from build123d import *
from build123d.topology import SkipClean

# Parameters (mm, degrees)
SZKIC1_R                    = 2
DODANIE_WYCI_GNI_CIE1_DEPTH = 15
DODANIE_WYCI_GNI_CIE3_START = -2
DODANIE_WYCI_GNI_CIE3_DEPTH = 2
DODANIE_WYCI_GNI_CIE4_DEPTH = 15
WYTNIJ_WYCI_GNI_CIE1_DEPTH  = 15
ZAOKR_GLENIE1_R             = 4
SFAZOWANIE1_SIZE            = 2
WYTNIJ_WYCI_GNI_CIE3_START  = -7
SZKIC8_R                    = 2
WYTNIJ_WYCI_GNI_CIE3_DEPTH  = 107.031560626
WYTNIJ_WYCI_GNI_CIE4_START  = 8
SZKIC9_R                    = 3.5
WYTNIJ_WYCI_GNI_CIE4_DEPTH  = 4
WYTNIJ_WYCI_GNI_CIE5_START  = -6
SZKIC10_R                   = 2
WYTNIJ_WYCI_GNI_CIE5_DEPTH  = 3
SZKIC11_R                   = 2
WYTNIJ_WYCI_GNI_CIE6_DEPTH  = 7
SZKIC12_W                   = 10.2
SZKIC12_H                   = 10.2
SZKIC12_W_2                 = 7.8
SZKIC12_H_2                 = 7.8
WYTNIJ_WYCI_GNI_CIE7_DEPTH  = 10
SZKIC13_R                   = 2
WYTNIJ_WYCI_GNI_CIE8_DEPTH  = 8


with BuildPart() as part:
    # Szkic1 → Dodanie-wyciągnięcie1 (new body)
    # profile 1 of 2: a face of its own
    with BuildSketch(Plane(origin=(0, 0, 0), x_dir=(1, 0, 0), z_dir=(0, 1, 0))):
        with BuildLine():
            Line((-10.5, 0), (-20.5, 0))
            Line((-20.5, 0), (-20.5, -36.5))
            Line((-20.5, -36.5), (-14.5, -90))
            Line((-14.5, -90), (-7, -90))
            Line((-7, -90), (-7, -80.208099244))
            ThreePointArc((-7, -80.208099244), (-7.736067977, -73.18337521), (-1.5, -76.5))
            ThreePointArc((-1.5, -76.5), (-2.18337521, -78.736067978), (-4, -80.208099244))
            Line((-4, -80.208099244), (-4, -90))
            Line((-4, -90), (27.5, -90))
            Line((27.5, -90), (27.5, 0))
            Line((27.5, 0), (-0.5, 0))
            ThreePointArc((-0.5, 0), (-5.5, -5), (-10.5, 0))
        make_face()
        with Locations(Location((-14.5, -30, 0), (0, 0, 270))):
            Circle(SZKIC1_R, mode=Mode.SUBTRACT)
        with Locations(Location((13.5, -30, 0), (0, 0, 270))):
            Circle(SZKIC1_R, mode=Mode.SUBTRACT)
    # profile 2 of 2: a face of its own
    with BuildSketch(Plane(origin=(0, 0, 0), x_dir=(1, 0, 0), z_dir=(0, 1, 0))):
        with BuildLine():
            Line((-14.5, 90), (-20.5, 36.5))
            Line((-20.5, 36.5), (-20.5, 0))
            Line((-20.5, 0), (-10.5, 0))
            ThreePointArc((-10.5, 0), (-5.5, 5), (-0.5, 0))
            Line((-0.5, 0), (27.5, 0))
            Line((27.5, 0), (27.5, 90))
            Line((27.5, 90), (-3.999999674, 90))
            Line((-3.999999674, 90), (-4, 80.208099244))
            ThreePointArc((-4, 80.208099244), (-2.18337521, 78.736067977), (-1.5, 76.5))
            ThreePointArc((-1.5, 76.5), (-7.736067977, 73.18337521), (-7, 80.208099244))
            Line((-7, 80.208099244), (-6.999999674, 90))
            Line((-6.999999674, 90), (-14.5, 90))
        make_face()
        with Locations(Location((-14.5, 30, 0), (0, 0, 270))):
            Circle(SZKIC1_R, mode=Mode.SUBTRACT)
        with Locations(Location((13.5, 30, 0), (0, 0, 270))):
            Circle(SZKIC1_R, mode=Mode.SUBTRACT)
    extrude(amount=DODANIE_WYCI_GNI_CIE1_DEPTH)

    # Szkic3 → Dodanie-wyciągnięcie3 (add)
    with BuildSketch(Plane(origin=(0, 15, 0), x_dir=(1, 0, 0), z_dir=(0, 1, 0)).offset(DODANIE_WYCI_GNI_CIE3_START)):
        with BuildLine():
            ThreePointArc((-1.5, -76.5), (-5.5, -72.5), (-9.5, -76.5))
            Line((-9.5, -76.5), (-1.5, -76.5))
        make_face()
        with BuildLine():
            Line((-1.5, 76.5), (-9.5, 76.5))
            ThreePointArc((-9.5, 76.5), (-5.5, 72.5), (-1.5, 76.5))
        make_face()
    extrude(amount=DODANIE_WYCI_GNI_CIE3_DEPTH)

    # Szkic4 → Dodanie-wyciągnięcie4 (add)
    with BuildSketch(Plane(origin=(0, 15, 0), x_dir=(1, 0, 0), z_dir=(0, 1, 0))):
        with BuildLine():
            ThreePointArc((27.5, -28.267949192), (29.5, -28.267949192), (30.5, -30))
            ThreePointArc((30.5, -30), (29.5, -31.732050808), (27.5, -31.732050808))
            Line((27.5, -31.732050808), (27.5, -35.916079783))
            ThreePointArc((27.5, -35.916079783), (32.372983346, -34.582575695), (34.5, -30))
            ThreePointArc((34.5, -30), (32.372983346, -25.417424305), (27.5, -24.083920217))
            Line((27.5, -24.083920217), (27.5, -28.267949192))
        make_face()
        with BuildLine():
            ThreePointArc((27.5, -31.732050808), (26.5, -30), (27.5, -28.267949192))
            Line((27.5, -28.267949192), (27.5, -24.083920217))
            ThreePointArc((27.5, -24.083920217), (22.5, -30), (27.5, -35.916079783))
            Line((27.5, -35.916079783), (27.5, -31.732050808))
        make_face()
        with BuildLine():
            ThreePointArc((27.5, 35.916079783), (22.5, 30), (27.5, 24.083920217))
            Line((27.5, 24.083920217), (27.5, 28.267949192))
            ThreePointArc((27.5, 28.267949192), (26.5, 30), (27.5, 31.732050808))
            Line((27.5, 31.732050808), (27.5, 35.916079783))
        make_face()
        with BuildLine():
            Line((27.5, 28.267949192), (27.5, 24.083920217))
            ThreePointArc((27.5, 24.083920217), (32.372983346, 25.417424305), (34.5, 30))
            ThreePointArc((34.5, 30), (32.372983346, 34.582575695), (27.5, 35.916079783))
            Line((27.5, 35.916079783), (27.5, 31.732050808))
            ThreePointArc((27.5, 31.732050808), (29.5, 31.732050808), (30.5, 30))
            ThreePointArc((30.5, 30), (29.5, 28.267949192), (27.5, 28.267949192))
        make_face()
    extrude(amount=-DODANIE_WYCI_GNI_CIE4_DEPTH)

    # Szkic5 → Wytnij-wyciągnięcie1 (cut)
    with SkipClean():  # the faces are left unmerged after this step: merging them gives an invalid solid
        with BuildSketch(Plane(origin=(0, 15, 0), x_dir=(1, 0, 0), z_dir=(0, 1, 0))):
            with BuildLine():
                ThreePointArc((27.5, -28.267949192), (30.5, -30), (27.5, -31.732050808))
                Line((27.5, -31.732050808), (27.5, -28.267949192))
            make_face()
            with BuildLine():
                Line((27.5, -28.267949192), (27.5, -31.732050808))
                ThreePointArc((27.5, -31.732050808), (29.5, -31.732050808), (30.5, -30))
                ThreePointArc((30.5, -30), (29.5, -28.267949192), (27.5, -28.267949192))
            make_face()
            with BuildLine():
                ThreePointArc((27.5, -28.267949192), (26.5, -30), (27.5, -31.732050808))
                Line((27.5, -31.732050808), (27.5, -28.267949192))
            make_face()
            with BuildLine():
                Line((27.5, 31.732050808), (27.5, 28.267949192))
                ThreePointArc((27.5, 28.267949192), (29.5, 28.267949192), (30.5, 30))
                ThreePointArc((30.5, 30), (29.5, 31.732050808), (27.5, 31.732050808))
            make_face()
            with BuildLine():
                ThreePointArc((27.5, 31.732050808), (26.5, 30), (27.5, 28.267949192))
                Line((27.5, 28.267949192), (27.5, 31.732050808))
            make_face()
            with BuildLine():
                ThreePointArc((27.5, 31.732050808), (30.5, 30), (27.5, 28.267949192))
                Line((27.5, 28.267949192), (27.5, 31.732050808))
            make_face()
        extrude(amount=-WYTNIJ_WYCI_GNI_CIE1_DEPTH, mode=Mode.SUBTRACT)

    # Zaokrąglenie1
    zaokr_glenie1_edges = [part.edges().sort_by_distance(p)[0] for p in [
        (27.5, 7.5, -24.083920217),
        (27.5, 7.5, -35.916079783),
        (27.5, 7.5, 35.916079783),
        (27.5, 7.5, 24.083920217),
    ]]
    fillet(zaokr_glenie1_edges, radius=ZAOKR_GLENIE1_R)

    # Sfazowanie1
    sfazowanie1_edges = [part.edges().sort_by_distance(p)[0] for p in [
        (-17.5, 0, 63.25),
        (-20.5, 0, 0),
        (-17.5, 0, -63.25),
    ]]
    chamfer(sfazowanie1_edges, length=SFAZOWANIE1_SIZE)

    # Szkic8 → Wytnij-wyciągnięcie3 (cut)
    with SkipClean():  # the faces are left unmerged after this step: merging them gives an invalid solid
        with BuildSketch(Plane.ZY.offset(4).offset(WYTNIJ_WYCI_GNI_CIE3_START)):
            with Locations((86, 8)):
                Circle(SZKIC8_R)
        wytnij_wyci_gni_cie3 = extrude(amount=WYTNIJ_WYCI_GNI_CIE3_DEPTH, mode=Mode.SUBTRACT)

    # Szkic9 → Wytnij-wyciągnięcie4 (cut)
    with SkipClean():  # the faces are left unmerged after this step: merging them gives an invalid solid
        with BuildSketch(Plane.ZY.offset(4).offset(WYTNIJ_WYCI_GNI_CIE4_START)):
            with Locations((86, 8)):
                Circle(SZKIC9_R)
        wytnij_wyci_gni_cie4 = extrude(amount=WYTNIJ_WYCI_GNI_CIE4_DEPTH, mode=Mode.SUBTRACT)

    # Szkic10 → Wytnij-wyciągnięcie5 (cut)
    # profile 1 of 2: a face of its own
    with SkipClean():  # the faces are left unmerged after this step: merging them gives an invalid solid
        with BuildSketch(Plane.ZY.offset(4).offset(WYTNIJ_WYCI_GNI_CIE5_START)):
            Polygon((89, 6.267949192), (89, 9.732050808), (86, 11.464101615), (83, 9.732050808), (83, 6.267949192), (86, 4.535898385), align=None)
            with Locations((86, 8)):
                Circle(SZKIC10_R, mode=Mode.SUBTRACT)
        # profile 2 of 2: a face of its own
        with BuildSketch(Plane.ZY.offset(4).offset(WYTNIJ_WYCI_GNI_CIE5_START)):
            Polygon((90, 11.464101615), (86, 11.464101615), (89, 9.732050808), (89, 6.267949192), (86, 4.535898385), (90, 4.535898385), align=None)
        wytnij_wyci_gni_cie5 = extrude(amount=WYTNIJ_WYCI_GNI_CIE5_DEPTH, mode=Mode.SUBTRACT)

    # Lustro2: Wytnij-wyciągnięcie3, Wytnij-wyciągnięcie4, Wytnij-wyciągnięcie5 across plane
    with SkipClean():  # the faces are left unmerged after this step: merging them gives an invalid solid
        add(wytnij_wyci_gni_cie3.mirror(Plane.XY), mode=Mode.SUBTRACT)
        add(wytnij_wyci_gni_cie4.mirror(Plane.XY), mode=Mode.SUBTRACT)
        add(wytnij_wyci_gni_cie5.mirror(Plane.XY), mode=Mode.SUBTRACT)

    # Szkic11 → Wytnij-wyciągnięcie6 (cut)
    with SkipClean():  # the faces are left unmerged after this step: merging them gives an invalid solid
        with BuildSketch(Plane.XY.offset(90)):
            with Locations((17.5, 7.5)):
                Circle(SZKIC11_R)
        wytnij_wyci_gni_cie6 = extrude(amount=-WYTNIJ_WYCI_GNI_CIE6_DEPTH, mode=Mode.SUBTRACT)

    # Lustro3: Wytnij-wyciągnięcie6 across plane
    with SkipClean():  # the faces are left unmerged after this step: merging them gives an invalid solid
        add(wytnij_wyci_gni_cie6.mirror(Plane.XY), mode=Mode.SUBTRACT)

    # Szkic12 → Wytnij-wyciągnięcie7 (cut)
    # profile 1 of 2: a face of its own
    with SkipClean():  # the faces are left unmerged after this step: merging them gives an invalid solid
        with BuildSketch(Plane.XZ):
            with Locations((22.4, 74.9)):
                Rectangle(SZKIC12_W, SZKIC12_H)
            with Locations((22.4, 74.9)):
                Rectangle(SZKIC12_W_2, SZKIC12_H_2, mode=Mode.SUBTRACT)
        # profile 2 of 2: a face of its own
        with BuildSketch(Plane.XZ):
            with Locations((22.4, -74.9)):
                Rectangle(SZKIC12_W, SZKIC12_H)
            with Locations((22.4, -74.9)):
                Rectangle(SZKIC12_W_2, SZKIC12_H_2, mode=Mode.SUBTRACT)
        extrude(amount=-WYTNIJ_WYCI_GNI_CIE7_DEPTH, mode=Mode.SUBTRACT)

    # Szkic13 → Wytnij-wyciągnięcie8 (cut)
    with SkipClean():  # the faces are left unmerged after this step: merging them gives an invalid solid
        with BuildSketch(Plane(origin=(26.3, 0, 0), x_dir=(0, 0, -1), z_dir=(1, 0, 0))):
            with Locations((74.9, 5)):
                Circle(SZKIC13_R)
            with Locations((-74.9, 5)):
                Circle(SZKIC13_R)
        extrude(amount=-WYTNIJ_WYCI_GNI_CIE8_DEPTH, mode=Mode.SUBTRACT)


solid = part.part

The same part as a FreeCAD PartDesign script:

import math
import FreeCAD as App
import Part
import Sketcher

V = App.Vector
Q = App.Units.Quantity


def edges_at(feature, points):
    """Names of the edges that pass closest to the given points."""
    edges = feature.Shape.Edges
    near = lambda p: min(range(len(edges)), key=lambda i: edges[i].distToShape(Part.Vertex(*p))[0])
    return sorted({f"Edge{near(p) + 1}" for p in points})


def add_polygon(sketch, points):
    """Adds a closed chain of lines whose ends are joined by coincident constraints."""
    first, n = sketch.GeometryCount, len(points)
    for a, b in zip(points, points[1:] + points[:1]):
        sketch.addGeometry(Part.LineSegment(App.Vector(*a, 0), App.Vector(*b, 0)), False)
    for i in range(n):
        sketch.addConstraint(Sketcher.Constraint("Coincident", first + i, 2, first + (i + 1) % n, 1))

doc = App.newDocument("Part")
body = doc.addObject("PartDesign::Body", "Body")

# Sketch on XZ plane
sketch1 = body.newObject("Sketcher::SketchObject", "Sketch")
sketch1.AttachmentSupport = (doc.getObject("XZ_Plane"), [""])
sketch1.MapMode = "FlatFace"
sketch1.addGeometry([
    Part.LineSegment(V(-20.5, 36.5, 0), V(-14.5, 90, 0)),  # 0
    Part.LineSegment(V(-14.5, 90, 0), V(-7, 90, 0)),  # 1
    Part.LineSegment(V(-7, 90, 0), V(-7, 80.208099, 0)),  # 2
    Part.ArcOfCircle(Part.Circle(V(-5.5, 76.5, 0), V(0, 0, 1), 4), math.radians(112.024313), math.radians(360)),  # 3
    Part.ArcOfCircle(Part.Circle(V(-5.5, 76.5, 0), V(0, 0, 1), 4), math.radians(0), math.radians(67.975687)),  # 4
    Part.LineSegment(V(-4, 80.208099, 0), V(-4, 90, 0)),  # 5
    Part.LineSegment(V(-4, 90, 0), V(27.5, 90, 0)),  # 6
    Part.LineSegment(V(27.5, 90, 0), V(27.5, -90, 0)),  # 7
    Part.LineSegment(V(27.5, -90, 0), V(-4, -90, 0)),  # 8
    Part.LineSegment(V(-4, -90, 0), V(-4, -80.208099, 0)),  # 9
    Part.ArcOfCircle(Part.Circle(V(-5.5, -76.5, 0), V(0, 0, 1), 4), math.radians(-67.975687), math.radians(0)),  # 10
    Part.ArcOfCircle(Part.Circle(V(-5.5, -76.5, 0), V(0, 0, 1), 4), math.radians(0), math.radians(247.975687)),  # 11
    Part.LineSegment(V(-7, -80.208099, 0), V(-7, -90, 0)),  # 12
    Part.LineSegment(V(-7, -90, 0), V(-14.5, -90, 0)),  # 13
    Part.LineSegment(V(-14.5, -90, 0), V(-20.5, -36.5, 0)),  # 14
    Part.LineSegment(V(-20.5, -36.5, 0), V(-20.5, 36.5, 0)),  # 15
    Part.Circle(V(-5.5, 0, 0), V(0, 0, 1), 5),  # 16
    Part.Circle(V(-14.5, 30, 0), V(0, 0, 1), 2),  # 17
    Part.Circle(V(13.5, 30, 0), V(0, 0, 1), 2),  # 18
    Part.Circle(V(13.5, -30, 0), V(0, 0, 1), 2),  # 19
    Part.Circle(V(-14.5, -30, 0), V(0, 0, 1), 2),  # 20
], False)
sketch1.addConstraint([
    Sketcher.Constraint("Coincident", 0, 2, 1, 1),
    Sketcher.Constraint("Coincident", 1, 2, 2, 1),
    Sketcher.Constraint("Coincident", 2, 2, 3, 1),
    Sketcher.Constraint("Tangent", 3, 2, 4, 1),
    Sketcher.Constraint("Coincident", 4, 2, 5, 1),
    Sketcher.Constraint("Coincident", 5, 2, 6, 1),
    Sketcher.Constraint("Coincident", 6, 2, 7, 1),
    Sketcher.Constraint("Coincident", 7, 2, 8, 1),
    Sketcher.Constraint("Coincident", 8, 2, 9, 1),
    Sketcher.Constraint("Coincident", 9, 2, 10, 1),
    Sketcher.Constraint("Tangent", 10, 2, 11, 1),
    Sketcher.Constraint("Coincident", 11, 2, 12, 1),
    Sketcher.Constraint("Coincident", 12, 2, 13, 1),
    Sketcher.Constraint("Coincident", 13, 2, 14, 1),
    Sketcher.Constraint("Coincident", 14, 2, 15, 1),
    Sketcher.Constraint("Coincident", 15, 2, 0, 1),
    Sketcher.Constraint("Horizontal", 1),
    Sketcher.Constraint("Vertical", 2),
    Sketcher.Constraint("Vertical", 5),
    Sketcher.Constraint("Horizontal", 6),
    Sketcher.Constraint("Vertical", 7),
    Sketcher.Constraint("Horizontal", 8),
    Sketcher.Constraint("Vertical", 9),
    Sketcher.Constraint("Vertical", 12),
    Sketcher.Constraint("Horizontal", 13),
    Sketcher.Constraint("Vertical", 15),
    Sketcher.Constraint("Equal", 3, 4),
    Sketcher.Constraint("Equal", 4, 10),
    Sketcher.Constraint("Equal", 10, 11),
    Sketcher.Constraint("Equal", 17, 18),
    Sketcher.Constraint("Equal", 18, 19),
    Sketcher.Constraint("Equal", 19, 20),
    Sketcher.Constraint("Symmetric", 3, 3, 10, 3, -1),
    Sketcher.Constraint("Symmetric", 18, 3, 19, 3, -1),
    Sketcher.Constraint("Symmetric", 17, 3, 20, 3, -1),
    Sketcher.Constraint("Symmetric", 5, 2, 8, 2, -1),
    Sketcher.Constraint("Symmetric", 1, 2, 12, 2, -1),
    Sketcher.Constraint("PointOnObject", 16, 3, -1),
    Sketcher.Constraint("Horizontal", 17, 3, 18, 3),
    Sketcher.Constraint("Horizontal", 4, 3, 3, 2),
    Sketcher.Constraint("Horizontal", 2, 2, 4, 2),
    Sketcher.Constraint("Horizontal", 1, 2, 5, 2),
    Sketcher.Constraint("Horizontal", 11, 3, 10, 2),
    Sketcher.Constraint("Vertical", 11, 3, 16, 3),
    Sketcher.Constraint("Vertical", 20, 3, 0, 2),
    Sketcher.Constraint("Vertical", 0, 2, 13, 2),
    Sketcher.Constraint("Equal", 0, 14),
    Sketcher.Constraint("Diameter", 16, Q("10 mm")),
    Sketcher.Constraint("Diameter", 17, Q("4 mm")),
    Sketcher.Constraint("Radius", 3, Q("4 mm")),
    Sketcher.Constraint("DistanceY", 7, 2, 7, 1, Q("180 mm")),
    Sketcher.Constraint("DistanceY", 15, 1, 15, 2, Q("73 mm")),
    Sketcher.Constraint("DistanceX", 1, 1, 1, 2, Q("7.5 mm")),
    Sketcher.Constraint("DistanceX", 6, 1, 6, 2, Q("31.5 mm")),
    Sketcher.Constraint("DistanceY", -1, 1, 17, 3, Q("30 mm")),
    Sketcher.Constraint("DistanceX", 1, 2, -1, 1, Q("7 mm")),
    Sketcher.Constraint("DistanceX", 4, 2, -1, 1, Q("4 mm")),
    Sketcher.Constraint("DistanceY", 10, 3, 4, 3, Q("153 mm")),
    Sketcher.Constraint("DistanceX", 17, 3, 18, 3, Q("28 mm")),
    Sketcher.Constraint("DistanceX", 14, 2, 20, 3, Q("6 mm")),
])
pad1 = body.newObject("PartDesign::Pad", "Pad")
pad1.Profile = sketch1
pad1.Length = 15
pad1.Reversed = True

# Sketch on XZ plane
sketch2 = body.newObject("Sketcher::SketchObject", "Sketch001")
sketch2.AttachmentSupport = (doc.getObject("XZ_Plane"), [""])
sketch2.MapMode = "FlatFace"
sketch2.AttachmentOffset = App.Placement(V(0, 0, -13), App.Rotation())
sketch2.addGeometry([
    Part.ArcOfCircle(Part.Circle(V(-5.5, 76.5, 0), V(0, 0, 1), 4), math.radians(180), math.radians(360)),
    Part.LineSegment(V(-9.5, 76.5, 0), V(-1.5, 76.5, 0)),
    Part.LineSegment(V(-1.5, -76.5, 0), V(-9.5, -76.5, 0)),
    Part.ArcOfCircle(Part.Circle(V(-5.5, -76.5, 0), V(0, 0, 1), 4), math.radians(0), math.radians(180)),
], False)
sketch2.addConstraint([
    Sketcher.Constraint("Coincident", 0, 1, 1, 1),
    Sketcher.Constraint("Coincident", 1, 2, 0, 2),
    Sketcher.Constraint("Coincident", 2, 1, 3, 1),
    Sketcher.Constraint("Coincident", 3, 2, 2, 2),
    Sketcher.Constraint("Horizontal", 1),
    Sketcher.Constraint("Horizontal", 2),
    Sketcher.Constraint("Equal", 0, 3),
    Sketcher.Constraint("Symmetric", 0, 3, 3, 3, -1),
    Sketcher.Constraint("Horizontal", 3, 3, 2, 1),
    Sketcher.Constraint("Radius", 0, Q("4 mm")),
    Sketcher.Constraint("DistanceY", 3, 3, 0, 3, Q("153 mm")),
    Sketcher.Constraint("DistanceY", 3, 3, 0, 1, Q("153 mm")),
    Sketcher.Constraint("DistanceX", 0, 3, -1, 1, Q("5.5 mm")),
])
pad2 = body.newObject("PartDesign::Pad", "Pad001")
pad2.Profile = sketch2
pad2.Length = 2
pad2.Reversed = True

# Sketch on XZ plane
sketch3 = body.newObject("Sketcher::SketchObject", "Sketch002")
sketch3.AttachmentSupport = (doc.getObject("XZ_Plane"), [""])
sketch3.MapMode = "FlatFace"
sketch3.AttachmentOffset = App.Placement(V(0, 0, -15), App.Rotation())
sketch3.addGeometry([
    Part.ArcOfCircle(Part.Circle(V(28.5, 30, 0), V(0, 0, 1), 6), math.radians(0), math.radians(99.594068)),  # 0
    Part.ArcOfCircle(Part.Circle(V(28.5, 30, 0), V(0, 0, 1), 6), math.radians(-99.594068), math.radians(0)),  # 1
    Part.ArcOfCircle(Part.Circle(V(28.5, 30, 0), V(0, 0, 1), 6), math.radians(99.594068), math.radians(260.405932)),  # 2
    Part.ArcOfCircle(Part.Circle(V(28.5, 30, 0), V(0, 0, 1), 2), math.radians(-120), math.radians(0)),  # 3
    Part.ArcOfCircle(Part.Circle(V(28.5, 30, 0), V(0, 0, 1), 2), math.radians(0), math.radians(120)),  # 4
    Part.ArcOfCircle(Part.Circle(V(28.5, 30, 0), V(0, 0, 1), 2), math.radians(120), math.radians(240)),  # 5
    Part.ArcOfCircle(Part.Circle(V(28.5, -30, 0), V(0, 0, 1), 6), math.radians(99.594068), math.radians(260.405932)),  # 6
    Part.ArcOfCircle(Part.Circle(V(28.5, -30, 0), V(0, 0, 1), 6), math.radians(0), math.radians(99.594068)),  # 7
    Part.ArcOfCircle(Part.Circle(V(28.5, -30, 0), V(0, 0, 1), 6), math.radians(-99.594068), math.radians(0)),  # 8
    Part.ArcOfCircle(Part.Circle(V(28.5, -30, 0), V(0, 0, 1), 2), math.radians(120), math.radians(240)),  # 9
    Part.ArcOfCircle(Part.Circle(V(28.5, -30, 0), V(0, 0, 1), 2), math.radians(-120), math.radians(0)),  # 10
    Part.ArcOfCircle(Part.Circle(V(28.5, -30, 0), V(0, 0, 1), 2), math.radians(0), math.radians(120)),  # 11
], False)
sketch3.addConstraint([
    Sketcher.Constraint("Tangent", 0, 1, 1, 2),
    Sketcher.Constraint("Tangent", 1, 1, 2, 2),
    Sketcher.Constraint("Tangent", 2, 1, 0, 2),
    Sketcher.Constraint("Tangent", 3, 2, 4, 1),
    Sketcher.Constraint("Tangent", 4, 2, 5, 1),
    Sketcher.Constraint("Tangent", 5, 2, 3, 1),
    Sketcher.Constraint("Tangent", 6, 1, 7, 2),
    Sketcher.Constraint("Tangent", 7, 1, 8, 2),
    Sketcher.Constraint("Tangent", 8, 1, 6, 2),
    Sketcher.Constraint("Tangent", 9, 2, 10, 1),
    Sketcher.Constraint("Tangent", 10, 2, 11, 1),
    Sketcher.Constraint("Tangent", 11, 2, 9, 1),
    Sketcher.Constraint("Coincident", 3, 3, 0, 3),
    Sketcher.Constraint("Coincident", 9, 3, 6, 3),
    Sketcher.Constraint("Equal", 2, 6),
    Sketcher.Constraint("Equal", 5, 9),
    Sketcher.Constraint("Symmetric", 0, 3, 6, 3, -1),
    Sketcher.Constraint("Horizontal", 5, 3, 0, 1),
    Sketcher.Constraint("Horizontal", 0, 1, 3, 2),
    Sketcher.Constraint("Horizontal", 11, 3, 7, 1),
    Sketcher.Constraint("Horizontal", 7, 1, 10, 2),
    Sketcher.Constraint("Vertical", 1, 1, 2, 1),
    Sketcher.Constraint("Vertical", 2, 1, 4, 2),
    Sketcher.Constraint("Vertical", 4, 2, 5, 2),
    Sketcher.Constraint("Vertical", 5, 2, 6, 1),
    Sketcher.Constraint("Vertical", 6, 1, 8, 1),
    Sketcher.Constraint("Vertical", 8, 1, 9, 2),
    Sketcher.Constraint("Vertical", 9, 2, 11, 2),
    Sketcher.Constraint("Radius", 0, Q("6 mm")),
    Sketcher.Constraint("Radius", 3, Q("2 mm")),
    Sketcher.Constraint("DistanceY", -1, 1, 0, 3, Q("30 mm")),
    Sketcher.Constraint("DistanceX", 1, 1, 0, 3, Q("1 mm")),
    Sketcher.Constraint("DistanceX", -1, 1, 0, 3, Q("28.5 mm")),
])
pad3 = body.newObject("PartDesign::Pad", "Pad002")
pad3.Profile = sketch3
pad3.Length = 15

# Sketch on XZ plane
sketch4 = body.newObject("Sketcher::SketchObject", "Sketch003")
sketch4.AttachmentSupport = (doc.getObject("XZ_Plane"), [""])
sketch4.MapMode = "FlatFace"
sketch4.AttachmentOffset = App.Placement(V(0, 0, -15), App.Rotation())
sketch4.addGeometry([
    Part.ArcOfCircle(Part.Circle(V(28.5, 30, 0), V(0, 0, 1), 2), math.radians(-120), math.radians(0)),  # 0
    Part.LineSegment(V(27.5, 28.267949, 0), V(27.5, 31.732051, 0)),  # 1
    Part.ArcOfCircle(Part.Circle(V(28.5, 30, 0), V(0, 0, 1), 2), math.radians(0), math.radians(120)),  # 2
    Part.ArcOfCircle(Part.Circle(V(28.5, 30, 0), V(0, 0, 1), 2), math.radians(120), math.radians(240)),  # 3
    Part.LineSegment(V(27.5, 31.732051, 0), V(27.5, 28.267949, 0)),  # 4
    Part.LineSegment(V(27.5, -31.732051, 0), V(27.5, -28.267949, 0)),  # 5
    Part.ArcOfCircle(Part.Circle(V(28.5, -30, 0), V(0, 0, 1), 2), math.radians(0), math.radians(120)),  # 6
    Part.ArcOfCircle(Part.Circle(V(28.5, -30, 0), V(0, 0, 1), 2), math.radians(-120), math.radians(0)),  # 7
    Part.ArcOfCircle(Part.Circle(V(28.5, -30, 0), V(0, 0, 1), 2), math.radians(120), math.radians(240)),  # 8
    Part.LineSegment(V(27.5, -28.267949, 0), V(27.5, -31.732051, 0)),  # 9
], False)
sketch4.addConstraint([
    Sketcher.Constraint("Coincident", 0, 1, 1, 1),
    Sketcher.Constraint("Coincident", 1, 2, 2, 2),
    Sketcher.Constraint("Tangent", 2, 1, 0, 2),
    Sketcher.Constraint("Coincident", 3, 1, 4, 1),
    Sketcher.Constraint("Coincident", 4, 2, 3, 2),
    Sketcher.Constraint("Coincident", 5, 2, 6, 2),
    Sketcher.Constraint("Tangent", 6, 1, 7, 2),
    Sketcher.Constraint("Coincident", 7, 1, 5, 1),
    Sketcher.Constraint("Coincident", 8, 1, 9, 1),
    Sketcher.Constraint("Coincident", 9, 2, 8, 2),
    Sketcher.Constraint("Vertical", 1),
    Sketcher.Constraint("Vertical", 4),
    Sketcher.Constraint("Vertical", 5),
    Sketcher.Constraint("Vertical", 9),
    Sketcher.Constraint("Coincident", 3, 3, 0, 3),
    Sketcher.Constraint("Coincident", 8, 3, 6, 3),
    Sketcher.Constraint("Coincident", 3, 1, 1, 2),
    Sketcher.Constraint("Coincident", 8, 1, 5, 2),
    Sketcher.Constraint("Equal", 0, 2),
    Sketcher.Constraint("Equal", 3, 6),
    Sketcher.Constraint("Equal", 6, 7),
    Sketcher.Constraint("Symmetric", 0, 3, 6, 3, -1),
    Sketcher.Constraint("Horizontal", 3, 3, 2, 1),
    Sketcher.Constraint("Horizontal", 8, 3, 6, 1),
    Sketcher.Constraint("Vertical", 4, 2, 5, 2),
    Sketcher.Constraint("Radius", 0, Q("2 mm")),
    Sketcher.Constraint("DistanceY", -1, 1, 0, 3, Q("30 mm")),
    Sketcher.Constraint("DistanceX", 0, 1, 0, 3, Q("1 mm")),
    Sketcher.Constraint("DistanceX", -1, 1, 0, 3, Q("28.5 mm")),
])
pocket1 = body.newObject("PartDesign::Pocket", "Pocket")
pocket1.Profile = sketch4
pocket1.Length = 15
pocket1.Reversed = True
doc.recompute()

fillet = body.newObject("PartDesign::Fillet", "Fillet")
fillet.Base = (pocket1, edges_at(pocket1, [
    (27.5, 7.5, -24.084),
    (27.5, 7.5, -35.916),
    (27.5, 7.5, 35.916),
    (27.5, 7.5, 24.084),
]))
fillet.Radius = 4
doc.recompute()

chamfer = body.newObject("PartDesign::Chamfer", "Chamfer")
chamfer.Base = (fillet, edges_at(fillet, [(-17.5, 0, 63.25), (-20.5, 0, 0), (-17.5, 0, -63.25)]))
chamfer.Size = 2

# Sketch on YZ plane
sketch5 = body.newObject("Sketcher::SketchObject", "Sketch004")
sketch5.AttachmentSupport = (doc.getObject("YZ_Plane"), [""])
sketch5.MapMode = "FlatFace"
sketch5.AttachmentOffset = App.Placement(V(0, 0, 3), App.Rotation())
sketch5.addGeometry(Part.Circle(V(8, 86, 0), V(0, 0, 1), 2), False)
sketch5.addConstraint([
    Sketcher.Constraint("Diameter", 0, Q("4 mm")),
    Sketcher.Constraint("DistanceX", -1, 1, 0, 3, Q("8 mm")),
    Sketcher.Constraint("DistanceY", -1, 1, 0, 3, Q("86 mm")),
])
pocket2 = body.newObject("PartDesign::Pocket", "Pocket001")
pocket2.Profile = sketch5
pocket2.Length = 107.031561

# Sketch on YZ plane
sketch6 = body.newObject("Sketcher::SketchObject", "Sketch005")
sketch6.AttachmentSupport = (doc.getObject("YZ_Plane"), [""])
sketch6.MapMode = "FlatFace"
sketch6.AttachmentOffset = App.Placement(V(0, 0, -12), App.Rotation())
sketch6.addGeometry(Part.Circle(V(8, 86, 0), V(0, 0, 1), 3.5), False)
sketch6.addConstraint([
    Sketcher.Constraint("Diameter", 0, Q("7 mm")),
    Sketcher.Constraint("DistanceX", -1, 1, 0, 3, Q("8 mm")),
    Sketcher.Constraint("DistanceY", -1, 1, 0, 3, Q("86 mm")),
])
pocket3 = body.newObject("PartDesign::Pocket", "Pocket002")
pocket3.Profile = sketch6
pocket3.Length = 4

# Sketch on YZ plane
sketch7 = body.newObject("Sketcher::SketchObject", "Sketch006")
sketch7.AttachmentSupport = (doc.getObject("YZ_Plane"), [""])
sketch7.MapMode = "FlatFace"
sketch7.AttachmentOffset = App.Placement(V(0, 0, 2), App.Rotation())
add_polygon(sketch7, [(6.267949, 83), (4.535898, 86), (4.535898, 90), (11.464102, 90), (11.464102, 86), (9.732051, 83)])  # lines 0-5
sketch7.addGeometry(Part.Circle(V(8, 86, 0), V(0, 0, 1), 2), False)  # 6
sketch7.addConstraint([
    Sketcher.Constraint("Vertical", 1),
    Sketcher.Constraint("Horizontal", 2),
    Sketcher.Constraint("Vertical", 3),
    Sketcher.Constraint("Horizontal", 5),
    Sketcher.Constraint("Horizontal", 6, 3, 0, 2),
    Sketcher.Constraint("Horizontal", 0, 2, 3, 2),
    Sketcher.Constraint("Equal", 0, 4),
    Sketcher.Constraint("Diameter", 6, Q("4 mm")),
    Sketcher.Constraint("DistanceY", 1, 1, 1, 2, Q("4 mm")),
    Sketcher.Constraint("Angle", 0, Q("120 deg")),
    Sketcher.Constraint("DistanceX", -1, 1, 6, 3, Q("8 mm")),
    Sketcher.Constraint("DistanceY", -1, 1, 6, 3, Q("86 mm")),
    Sketcher.Constraint("DistanceY", -1, 1, 4, 2, Q("83 mm")),
    Sketcher.Constraint("DistanceX", 5, 2, 5, 1, Q("3.464102 mm")),
    Sketcher.Constraint("DistanceX", -1, 1, 0, 2, Q("4.535898 mm")),
])
pocket4 = body.newObject("PartDesign::Pocket", "Pocket003")
pocket4.Profile = sketch7
pocket4.Length = 3
doc.recompute()

mirrored = body.newObject("PartDesign::Mirrored", "Mirrored")
mirrored.Originals = [pocket2, pocket3, pocket4]
mirrored.MirrorPlane = (doc.getObject("XY_Plane"), [""])
body.Tip = mirrored

# Sketch on XY plane
sketch8 = body.newObject("Sketcher::SketchObject", "Sketch007")
sketch8.AttachmentSupport = (doc.getObject("XY_Plane"), [""])
sketch8.MapMode = "FlatFace"
sketch8.AttachmentOffset = App.Placement(V(0, 0, 90), App.Rotation())
sketch8.addGeometry(Part.Circle(V(17.5, 7.5, 0), V(0, 0, 1), 2), False)
sketch8.addConstraint([
    Sketcher.Constraint("Diameter", 0, Q("4 mm")),
    Sketcher.Constraint("DistanceX", -1, 1, 0, 3, Q("17.5 mm")),
    Sketcher.Constraint("DistanceY", -1, 1, 0, 3, Q("7.5 mm")),
])
pocket5 = body.newObject("PartDesign::Pocket", "Pocket004")
pocket5.Profile = sketch8
pocket5.Length = 7
doc.recompute()

mirrored2 = body.newObject("PartDesign::Mirrored", "Mirrored001")
mirrored2.Originals = [pocket5]
mirrored2.MirrorPlane = (doc.getObject("XY_Plane"), [""])
body.Tip = mirrored2

# Sketch on XZ plane
sketch9 = body.newObject("Sketcher::SketchObject", "Sketch008")
sketch9.AttachmentSupport = (doc.getObject("XZ_Plane"), [""])
sketch9.MapMode = "FlatFace"
add_polygon(sketch9, [(17.3, 80), (17.3, 69.8), (27.5, 69.8), (27.5, 80)])  # lines 0-3
add_polygon(sketch9, [(26.3, 71), (18.5, 71), (18.5, 78.8), (26.3, 78.8)])  # lines 4-7
add_polygon(sketch9, [(17.3, -69.8), (17.3, -80), (27.5, -80), (27.5, -69.8)])  # lines 8-11
add_polygon(sketch9, [(26.3, -78.8), (18.5, -78.8), (18.5, -71), (26.3, -71)])  # lines 12-15
sketch9.addConstraint([
    Sketcher.Constraint("Vertical", 0),
    Sketcher.Constraint("Horizontal", 1),
    Sketcher.Constraint("Vertical", 2),
    Sketcher.Constraint("Horizontal", 3),
    Sketcher.Constraint("Horizontal", 4),
    Sketcher.Constraint("Vertical", 5),
    Sketcher.Constraint("Horizontal", 6),
    Sketcher.Constraint("Vertical", 7),
    Sketcher.Constraint("Vertical", 8),
    Sketcher.Constraint("Horizontal", 9),
    Sketcher.Constraint("Vertical", 10),
    Sketcher.Constraint("Horizontal", 11),
    Sketcher.Constraint("Horizontal", 12),
    Sketcher.Constraint("Vertical", 13),
    Sketcher.Constraint("Horizontal", 14),
    Sketcher.Constraint("Vertical", 15),
    Sketcher.Constraint("Symmetric", 3, 2, 8, 2, -1),
    Sketcher.Constraint("Symmetric", 1, 2, 10, 2, -1),
    Sketcher.Constraint("Symmetric", 5, 2, 12, 2, -1),
    Sketcher.Constraint("Symmetric", 7, 2, 14, 2, -1),
    Sketcher.Constraint("Equal", 11, 0),
    Sketcher.Constraint("Equal", 14, 5),
    Sketcher.Constraint("DistanceX", 1, 1, 1, 2, Q("10.2 mm")),
    Sketcher.Constraint("DistanceX", 4, 2, 4, 1, Q("7.8 mm")),
    Sketcher.Constraint("DistanceY", -1, 1, 2, 2, Q("80 mm")),
    Sketcher.Constraint("DistanceY", -1, 1, 4, 2, Q("71 mm")),
    Sketcher.Constraint("DistanceX", 4, 2, 1, 2, Q("9 mm")),
    Sketcher.Constraint("DistanceX", -1, 1, 0, 2, Q("17.3 mm")),
])
pocket6 = body.newObject("PartDesign::Pocket", "Pocket005")
pocket6.Profile = sketch9
pocket6.Length = 10

# Sketch on YZ plane
sketch10 = body.newObject("Sketcher::SketchObject", "Sketch009")
sketch10.AttachmentSupport = (doc.getObject("YZ_Plane"), [""])
sketch10.MapMode = "FlatFace"
sketch10.AttachmentOffset = App.Placement(V(0, 0, 26.3), App.Rotation())
sketch10.addGeometry([
    Part.Circle(V(5, -74.9, 0), V(0, 0, 1), 2),
    Part.Circle(V(5, 74.9, 0), V(0, 0, 1), 2),
], False)
sketch10.addConstraint([
    Sketcher.Constraint("Equal", 0, 1),
    Sketcher.Constraint("Symmetric", 0, 3, 1, 3, -1),
    Sketcher.Constraint("Diameter", 0, Q("4 mm")),
    Sketcher.Constraint("DistanceX", -1, 1, 0, 3, Q("5 mm")),
    Sketcher.Constraint("DistanceY", 0, 3, -1, 1, Q("74.9 mm")),
])
pocket7 = body.newObject("PartDesign::Pocket", "Pocket006")
pocket7.Profile = sketch10
pocket7.Length = 8

doc.recompute()
